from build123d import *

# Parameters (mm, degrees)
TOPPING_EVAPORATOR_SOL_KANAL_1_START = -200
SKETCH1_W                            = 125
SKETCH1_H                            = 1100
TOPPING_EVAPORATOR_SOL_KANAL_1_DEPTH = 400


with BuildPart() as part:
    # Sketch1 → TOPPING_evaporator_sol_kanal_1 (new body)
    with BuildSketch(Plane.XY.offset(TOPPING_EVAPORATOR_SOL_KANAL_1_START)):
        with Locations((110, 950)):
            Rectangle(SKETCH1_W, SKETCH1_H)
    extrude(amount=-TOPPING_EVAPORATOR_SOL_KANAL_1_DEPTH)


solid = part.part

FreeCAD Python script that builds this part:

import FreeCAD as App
import Part
import Sketcher

V = App.Vector
Q = App.Units.Quantity


def add_polygon(sketch, points):
    """Adds a closed chain of lines whose ends are joined by coincident constraints."""
    first, n = sketch.GeometryCount, len(points)
    for a, b in zip(points, points[1:] + points[:1]):
        sketch.addGeometry(Part.LineSegment(App.Vector(*a, 0), App.Vector(*b, 0)), False)
    for i in range(n):
        sketch.addConstraint(Sketcher.Constraint("Coincident", first + i, 2, first + (i + 1) % n, 1))

doc = App.newDocument("Part")
params = doc.addObject("Spreadsheet::Sheet", "Params")
for row, (alias, value) in enumerate([
    ("sketch1_width", "125 mm"),
    ("sketch1_height", "1100 mm"),
    ("pad1_length", "400 mm"),
], start=1):
    params.set(f"A{row}", alias)
    params.set(f"B{row}", "=" + value)
    params.setAlias(f"B{row}", alias)

body = doc.addObject("PartDesign::Body", "Body")

# Sketch on XY plane
sketch1 = body.newObject("Sketcher::SketchObject", "Sketch")
sketch1.AttachmentSupport = (doc.getObject("XY_Plane"), [""])
sketch1.MapMode = "FlatFace"
sketch1.AttachmentOffset = App.Placement(V(0, 0, -200), App.Rotation())
add_polygon(sketch1, [(48, 1500), (48, 400), (172, 400), (172, 1500)])  # lines 0-3
sketch1.addConstraint([
    Sketcher.Constraint("Vertical", 0),
    Sketcher.Constraint("Horizontal", 1),
    Sketcher.Constraint("Vertical", 2),
    Sketcher.Constraint("Horizontal", 3),
    Sketcher.Constraint("DistanceX", 1, 1, 1, 2, Q("125 mm")),
    Sketcher.Constraint("DistanceY", 0, 2, 0, 1, Q("1100 mm")),
    Sketcher.Constraint("DistanceY", -1, 1, 0, 2, Q("400 mm")),
    Sketcher.Constraint("DistanceX", -1, 1, 0, 2, Q("47.5 mm")),
])
sketch1.setExpression("Constraints[8]", "Params.sketch1_width")
sketch1.setExpression("Constraints[9]", "Params.sketch1_height")
pad1 = body.newObject("PartDesign::Pad", "Pad")
pad1.Profile = sketch1
pad1.setExpression("Length", "Params.pad1_length")
pad1.Reversed = True

doc.recompute()
